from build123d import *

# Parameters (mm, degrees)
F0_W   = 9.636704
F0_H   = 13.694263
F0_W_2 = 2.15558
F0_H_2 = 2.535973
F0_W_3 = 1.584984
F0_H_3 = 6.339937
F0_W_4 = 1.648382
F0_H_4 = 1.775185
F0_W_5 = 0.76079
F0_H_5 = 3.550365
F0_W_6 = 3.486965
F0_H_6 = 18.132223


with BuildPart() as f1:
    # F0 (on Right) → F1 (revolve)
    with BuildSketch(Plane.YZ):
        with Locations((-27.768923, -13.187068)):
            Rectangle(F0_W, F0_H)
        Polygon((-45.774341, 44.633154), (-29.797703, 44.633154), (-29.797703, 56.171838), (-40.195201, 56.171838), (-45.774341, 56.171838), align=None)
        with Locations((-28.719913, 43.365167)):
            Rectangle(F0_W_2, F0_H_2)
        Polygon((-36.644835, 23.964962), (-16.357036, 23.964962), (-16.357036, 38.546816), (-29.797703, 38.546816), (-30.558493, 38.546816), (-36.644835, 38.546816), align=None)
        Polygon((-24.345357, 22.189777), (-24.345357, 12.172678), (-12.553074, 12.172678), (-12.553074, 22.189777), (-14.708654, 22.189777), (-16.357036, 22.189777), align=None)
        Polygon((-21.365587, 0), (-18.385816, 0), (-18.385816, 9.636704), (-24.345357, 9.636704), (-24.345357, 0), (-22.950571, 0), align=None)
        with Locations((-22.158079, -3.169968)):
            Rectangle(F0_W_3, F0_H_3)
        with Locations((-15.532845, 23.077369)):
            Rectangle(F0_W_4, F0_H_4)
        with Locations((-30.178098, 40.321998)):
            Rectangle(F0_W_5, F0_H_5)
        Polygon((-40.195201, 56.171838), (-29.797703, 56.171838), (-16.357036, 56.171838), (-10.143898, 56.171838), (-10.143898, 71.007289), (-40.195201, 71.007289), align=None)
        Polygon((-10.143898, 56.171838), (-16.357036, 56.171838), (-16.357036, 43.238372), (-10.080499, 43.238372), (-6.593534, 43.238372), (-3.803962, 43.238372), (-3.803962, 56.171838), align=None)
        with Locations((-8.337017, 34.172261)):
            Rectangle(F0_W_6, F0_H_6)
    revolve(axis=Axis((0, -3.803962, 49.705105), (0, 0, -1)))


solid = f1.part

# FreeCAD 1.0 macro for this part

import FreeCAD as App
import Part
import Sketcher
Q = App.Units.Quantity

doc = App.newDocument("Part")
body = doc.addObject("PartDesign::Body", "Body")
body.AllowCompound = True

# Sketch on YZ plane
sketch1 = body.newObject("Sketcher::SketchObject", "Sketch")
sketch1.AttachmentSupport = (doc.getObject("YZ_Plane"), [""])
sketch1.MapMode = "FlatFace"
sketch1.addGeometry([
    Part.LineSegment(App.Vector(-32.6, -6.3, 0), App.Vector(-32.6, -20, 0)),  # 0
    Part.LineSegment(App.Vector(-32.6, -20, 0), App.Vector(-23, -20, 0)),  # 1
    Part.LineSegment(App.Vector(-23, -20, 0), App.Vector(-23, -6.3, 0)),  # 2
    Part.LineSegment(App.Vector(-23, -6.3, 0), App.Vector(-32.6, -6.3, 0)),  # 3
    Part.LineSegment(App.Vector(-45.8, 56.2, 0), App.Vector(-45.8, 44.6, 0)),  # 4
    Part.LineSegment(App.Vector(-45.8, 44.6, 0), App.Vector(-29.8, 44.6, 0)),  # 5
    Part.LineSegment(App.Vector(-29.8, 44.6, 0), App.Vector(-29.8, 56.2, 0)),  # 6
    Part.LineSegment(App.Vector(-29.8, 56.2, 0), App.Vector(-16.4, 56.2, 0)),  # 7
    Part.LineSegment(App.Vector(-16.4, 56.2, 0), App.Vector(-16.4, 43.2, 0)),  # 8
    Part.LineSegment(App.Vector(-16.4, 43.2, 0), App.Vector(-10.1, 43.2, 0)),  # 9
    Part.LineSegment(App.Vector(-10.1, 43.2, 0), App.Vector(-10.1, 25.1, 0)),  # 10
    Part.LineSegment(App.Vector(-10.1, 25.1, 0), App.Vector(-6.6, 25.1, 0)),  # 11
    Part.LineSegment(App.Vector(-6.6, 25.1, 0), App.Vector(-6.6, 43.2, 0)),  # 12
    Part.LineSegment(App.Vector(-6.6, 43.2, 0), App.Vector(-3.8, 43.2, 0)),  # 13
    Part.LineSegment(App.Vector(-3.8, 43.2, 0), App.Vector(-3.8, 56.2, 0)),  # 14
    Part.LineSegment(App.Vector(-3.8, 56.2, 0), App.Vector(-10.1, 56.2, 0)),  # 15
    Part.LineSegment(App.Vector(-10.1, 56.2, 0), App.Vector(-10.1, 71, 0)),  # 16
    Part.LineSegment(App.Vector(-10.1, 71, 0), App.Vector(-40.2, 71, 0)),  # 17
    Part.LineSegment(App.Vector(-40.2, 71, 0), App.Vector(-40.2, 56.2, 0)),  # 18
    Part.LineSegment(App.Vector(-40.2, 56.2, 0), App.Vector(-45.8, 56.2, 0)),  # 19
    Part.LineSegment(App.Vector(-29.8, 44.6, 0), App.Vector(-29.8, 42.1, 0)),  # 20
    Part.LineSegment(App.Vector(-29.8, 42.1, 0), App.Vector(-27.6, 42.1, 0)),  # 21
    Part.LineSegment(App.Vector(-27.6, 42.1, 0), App.Vector(-27.6, 44.6, 0)),  # 22
    Part.LineSegment(App.Vector(-27.6, 44.6, 0), App.Vector(-29.8, 44.6, 0)),  # 23
    Part.LineSegment(App.Vector(-36.6, 38.5, 0), App.Vector(-36.6, 24, 0)),  # 24
    Part.LineSegment(App.Vector(-36.6, 24, 0), App.Vector(-16.4, 24, 0)),  # 25
    Part.LineSegment(App.Vector(-16.4, 24, 0), App.Vector(-16.4, 38.5, 0)),  # 26
    Part.LineSegment(App.Vector(-16.4, 38.5, 0), App.Vector(-29.8, 38.5, 0)),  # 27
    Part.LineSegment(App.Vector(-29.8, 38.5, 0), App.Vector(-29.8, 42.1, 0)),  # 28
    Part.LineSegment(App.Vector(-29.8, 42.1, 0), App.Vector(-30.6, 42.1, 0)),  # 29
    Part.LineSegment(App.Vector(-30.6, 42.1, 0), App.Vector(-30.6, 38.5, 0)),  # 30
    Part.LineSegment(App.Vector(-30.6, 38.5, 0), App.Vector(-36.6, 38.5, 0)),  # 31
    Part.LineSegment(App.Vector(-16.4, 22.2, 0), App.Vector(-24.3, 22.2, 0)),  # 32
    Part.LineSegment(App.Vector(-24.3, 22.2, 0), App.Vector(-24.3, 12.2, 0)),  # 33
    Part.LineSegment(App.Vector(-24.3, 12.2, 0), App.Vector(-12.6, 12.2, 0)),  # 34
    Part.LineSegment(App.Vector(-12.6, 12.2, 0), App.Vector(-12.6, 22.2, 0)),  # 35
    Part.LineSegment(App.Vector(-12.6, 22.2, 0), App.Vector(-14.7, 22.2, 0)),  # 36
    Part.LineSegment(App.Vector(-14.7, 22.2, 0), App.Vector(-14.7, 24, 0)),  # 37
    Part.LineSegment(App.Vector(-14.7, 24, 0), App.Vector(-16.4, 24, 0)),  # 38
    Part.LineSegment(App.Vector(-16.4, 24, 0), App.Vector(-16.4, 22.2, 0)),  # 39
    Part.LineSegment(App.Vector(-21.4, 0, 0), App.Vector(-18.4, 0, 0)),  # 40
    Part.LineSegment(App.Vector(-18.4, 0, 0), App.Vector(-18.4, 9.6, 0)),  # 41
    Part.LineSegment(App.Vector(-18.4, 9.6, 0), App.Vector(-24.3, 9.6, 0)),  # 42
    Part.LineSegment(App.Vector(-24.3, 9.6, 0), App.Vector(-24.3, 0, 0)),  # 43
    Part.LineSegment(App.Vector(-24.3, 0, 0), App.Vector(-23, 0, 0)),  # 44
    Part.LineSegment(App.Vector(-23, 0, 0), App.Vector(-23, -6.3, 0)),  # 45
    Part.LineSegment(App.Vector(-23, -6.3, 0), App.Vector(-21.4, -6.3, 0)),  # 46
    Part.LineSegment(App.Vector(-21.4, -6.3, 0), App.Vector(-21.4, 0, 0)),  # 47
], False)
sketch1.addGeometry(Part.LineSegment(App.Vector(-3.8, 71, 0), App.Vector(-3.8, -20, 0)), True)  # axis
sketch1.addConstraint([
    Sketcher.Constraint("Coincident", 0, 2, 1, 1),
    Sketcher.Constraint("Coincident", 1, 2, 2, 1),
    Sketcher.Constraint("Coincident", 2, 2, 3, 1),
    Sketcher.Constraint("Coincident", 3, 2, 0, 1),
    Sketcher.Constraint("Coincident", 4, 2, 5, 1),
    Sketcher.Constraint("Coincident", 5, 2, 6, 1),
    Sketcher.Constraint("Coincident", 6, 2, 7, 1),
    Sketcher.Constraint("Coincident", 7, 2, 8, 1),
    Sketcher.Constraint("Coincident", 8, 2, 9, 1),
    Sketcher.Constraint("Coincident", 9, 2, 10, 1),
    Sketcher.Constraint("Coincident", 10, 2, 11, 1),
    Sketcher.Constraint("Coincident", 11, 2, 12, 1),
    Sketcher.Constraint("Coincident", 12, 2, 13, 1),
    Sketcher.Constraint("Coincident", 13, 2, 14, 1),
    Sketcher.Constraint("Coincident", 14, 2, 15, 1),
    Sketcher.Constraint("Coincident", 15, 2, 16, 1),
    Sketcher.Constraint("Coincident", 16, 2, 17, 1),
    Sketcher.Constraint("Coincident", 17, 2, 18, 1),
    Sketcher.Constraint("Coincident", 18, 2, 19, 1),
    Sketcher.Constraint("Coincident", 19, 2, 4, 1),
    Sketcher.Constraint("Coincident", 20, 2, 21, 1),
    Sketcher.Constraint("Coincident", 21, 2, 22, 1),
    Sketcher.Constraint("Coincident", 22, 2, 23, 1),
    Sketcher.Constraint("Coincident", 23, 2, 20, 1),
    Sketcher.Constraint("Coincident", 24, 2, 25, 1),
    Sketcher.Constraint("Coincident", 25, 2, 26, 1),
    Sketcher.Constraint("Coincident", 26, 2, 27, 1),
    Sketcher.Constraint("Coincident", 27, 2, 28, 1),
    Sketcher.Constraint("Coincident", 28, 2, 29, 1),
    Sketcher.Constraint("Coincident", 29, 2, 30, 1),
    Sketcher.Constraint("Coincident", 30, 2, 31, 1),
    Sketcher.Constraint("Coincident", 31, 2, 24, 1),
    Sketcher.Constraint("Coincident", 32, 2, 33, 1),
    Sketcher.Constraint("Coincident", 33, 2, 34, 1),
    Sketcher.Constraint("Coincident", 34, 2, 35, 1),
    Sketcher.Constraint("Coincident", 35, 2, 36, 1),
    Sketcher.Constraint("Coincident", 36, 2, 37, 1),
    Sketcher.Constraint("Coincident", 37, 2, 38, 1),
    Sketcher.Constraint("Coincident", 38, 2, 39, 1),
    Sketcher.Constraint("Coincident", 39, 2, 32, 1),
    Sketcher.Constraint("Coincident", 40, 2, 41, 1),
    Sketcher.Constraint("Coincident", 41, 2, 42, 1),
    Sketcher.Constraint("Coincident", 42, 2, 43, 1),
    Sketcher.Constraint("Coincident", 43, 2, 44, 1),
    Sketcher.Constraint("Coincident", 44, 2, 45, 1),
    Sketcher.Constraint("Coincident", 45, 2, 46, 1),
    Sketcher.Constraint("Coincident", 46, 2, 47, 1),
    Sketcher.Constraint("Coincident", 47, 2, 40, 1),
    Sketcher.Constraint("Vertical", 0),
    Sketcher.Constraint("Horizontal", 1),
    Sketcher.Constraint("Vertical", 2),
    Sketcher.Constraint("Horizontal", 3),
    Sketcher.Constraint("Vertical", 4),
    Sketcher.Constraint("Horizontal", 5),
    Sketcher.Constraint("Vertical", 6),
    Sketcher.Constraint("Horizontal", 7),
    Sketcher.Constraint("Vertical", 8),
    Sketcher.Constraint("Horizontal", 9),
    Sketcher.Constraint("Vertical", 10),
    Sketcher.Constraint("Horizontal", 11),
    Sketcher.Constraint("Vertical", 12),
    Sketcher.Constraint("Horizontal", 13),
    Sketcher.Constraint("Vertical", 14),
    Sketcher.Constraint("Horizontal", 15),
    Sketcher.Constraint("Vertical", 16),
    Sketcher.Constraint("Horizontal", 17),
    Sketcher.Constraint("Vertical", 18),
    Sketcher.Constraint("Horizontal", 19),
    Sketcher.Constraint("Vertical", 20),
    Sketcher.Constraint("Horizontal", 21),
    Sketcher.Constraint("Vertical", 22),
    Sketcher.Constraint("Horizontal", 23),
    Sketcher.Constraint("Vertical", 24),
    Sketcher.Constraint("Horizontal", 25),
    Sketcher.Constraint("Vertical", 26),
    Sketcher.Constraint("Horizontal", 27),
    Sketcher.Constraint("Vertical", 28),
    Sketcher.Constraint("Horizontal", 29),
    Sketcher.Constraint("Vertical", 30),
    Sketcher.Constraint("Horizontal", 31),
    Sketcher.Constraint("Horizontal", 32),
    Sketcher.Constraint("Vertical", 33),
    Sketcher.Constraint("Horizontal", 34),
    Sketcher.Constraint("Vertical", 35),
    Sketcher.Constraint("Horizontal", 36),
    Sketcher.Constraint("Vertical", 37),
    Sketcher.Constraint("Horizontal", 38),
    Sketcher.Constraint("Vertical", 39),
    Sketcher.Constraint("Horizontal", 40),
    Sketcher.Constraint("Vertical", 41),
    Sketcher.Constraint("Horizontal", 42),
    Sketcher.Constraint("Vertical", 43),
    Sketcher.Constraint("Horizontal", 44),
    Sketcher.Constraint("Vertical", 45),
    Sketcher.Constraint("Horizontal", 46),
    Sketcher.Constraint("Vertical", 47),
    Sketcher.Constraint("Vertical", 48),
    Sketcher.Constraint("Coincident", 23, 2, 5, 2),
    Sketcher.Constraint("Coincident", 28, 2, 20, 2),
    Sketcher.Constraint("Coincident", 38, 2, 25, 2),
    Sketcher.Constraint("Coincident", 45, 2, 2, 2),
    Sketcher.Constraint("PointOnObject", 40, 2, -1),
    Sketcher.Constraint("PointOnObject", 43, 2, -1),
    Sketcher.Constraint("Horizontal", 9, 2, 12, 2),
    Sketcher.Constraint("Horizontal", 7, 2, 14, 2),
    Sketcher.Constraint("Horizontal", 15, 2, 18, 2),
    Sketcher.Constraint("Horizontal", 27, 2, 30, 2),
    Sketcher.Constraint("Horizontal", 32, 2, 35, 2),
    Sketcher.Constraint("Horizontal", 17, 2, 48, 1),
    Sketcher.Constraint("Horizontal", 1, 2, 48, 2),
    Sketcher.Constraint("Vertical", 8, 2, 25, 2),
    Sketcher.Constraint("Vertical", 33, 2, 42, 2),
    Sketcher.Constraint("Vertical", 14, 2, 48, 1),
    Sketcher.Constraint("Equal", 23, 36),
    Sketcher.Constraint("Equal", 3, 41),
    Sketcher.Constraint("Equal", 15, 45),
    Sketcher.Constraint("DistanceX", 25, 1, 25, 2, Q("20.287799 mm")),
    Sketcher.Constraint("DistanceY", 33, 2, 33, 1, Q("10.017099 mm")),
    Sketcher.Constraint("DistanceX", 5, 1, 5, 2, Q("15.976638 mm")),
    Sketcher.Constraint("DistanceX", 19, 2, 19, 1, Q("5.57914 mm")),
    Sketcher.Constraint("DistanceX", 21, 1, 21, 2, Q("2.15558 mm")),
    Sketcher.Constraint("DistanceX", 29, 2, 29, 1, Q("0.76079 mm")),
    Sketcher.Constraint("DistanceX", 32, 2, 32, 1, Q("7.988321 mm")),
    Sketcher.Constraint("DistanceX", 40, 1, 40, 2, Q("2.979771 mm")),
    Sketcher.Constraint("DistanceX", 42, 2, 42, 1, Q("5.959541 mm")),
    Sketcher.Constraint("DistanceY", 16, 1, 16, 2, Q("14.835451 mm")),
    Sketcher.Constraint("DistanceY", 48, 2, 48, 1, Q("91.041488 mm")),
    Sketcher.Constraint("DistanceY", 0, 2, -1, 1, Q("20.034199 mm")),
    Sketcher.Constraint("DistanceX", 9, 2, -1, 1, Q("10.0805 mm")),
    Sketcher.Constraint("DistanceX", 17, 2, -1, 1, Q("40.195201 mm")),
    Sketcher.Constraint("DistanceX", 8, 2, 11, 2, Q("9.763502 mm")),
    Sketcher.Constraint("DistanceX", 15, 2, 9, 2, Q("0.063398 mm")),
    Sketcher.Constraint("DistanceX", 1, 1, 1, 2, Q("9.636704 mm")),
    Sketcher.Constraint("DistanceX", 7, 1, 7, 2, Q("13.440667 mm")),
    Sketcher.Constraint("DistanceX", 13, 1, 13, 2, Q("2.789572 mm")),
    Sketcher.Constraint("DistanceX", 34, 1, 34, 2, Q("11.792283 mm")),
    Sketcher.Constraint("DistanceX", 44, 1, 44, 2, Q("1.394786 mm")),
    Sketcher.Constraint("DistanceY", 4, 2, 4, 1, Q("11.538684 mm")),
    Sketcher.Constraint("DistanceY", 8, 2, 8, 1, Q("12.933466 mm")),
    Sketcher.Constraint("DistanceY", 10, 2, 10, 1, Q("18.132222 mm")),
    Sketcher.Constraint("DistanceY", 20, 2, 20, 1, Q("2.535973 mm")),
    Sketcher.Constraint("DistanceY", 24, 2, 24, 1, Q("14.581854 mm")),
    Sketcher.Constraint("DistanceY", 28, 1, 28, 2, Q("3.550365 mm")),
    Sketcher.Constraint("DistanceY", 37, 1, 37, 2, Q("1.775185 mm")),
])
revolution = body.newObject("PartDesign::Revolution", "Revolution")
revolution.Profile = sketch1
revolution.ReferenceAxis = (sketch1, ["Axis0"])
revolution.Angle = 360

doc.recompute()
